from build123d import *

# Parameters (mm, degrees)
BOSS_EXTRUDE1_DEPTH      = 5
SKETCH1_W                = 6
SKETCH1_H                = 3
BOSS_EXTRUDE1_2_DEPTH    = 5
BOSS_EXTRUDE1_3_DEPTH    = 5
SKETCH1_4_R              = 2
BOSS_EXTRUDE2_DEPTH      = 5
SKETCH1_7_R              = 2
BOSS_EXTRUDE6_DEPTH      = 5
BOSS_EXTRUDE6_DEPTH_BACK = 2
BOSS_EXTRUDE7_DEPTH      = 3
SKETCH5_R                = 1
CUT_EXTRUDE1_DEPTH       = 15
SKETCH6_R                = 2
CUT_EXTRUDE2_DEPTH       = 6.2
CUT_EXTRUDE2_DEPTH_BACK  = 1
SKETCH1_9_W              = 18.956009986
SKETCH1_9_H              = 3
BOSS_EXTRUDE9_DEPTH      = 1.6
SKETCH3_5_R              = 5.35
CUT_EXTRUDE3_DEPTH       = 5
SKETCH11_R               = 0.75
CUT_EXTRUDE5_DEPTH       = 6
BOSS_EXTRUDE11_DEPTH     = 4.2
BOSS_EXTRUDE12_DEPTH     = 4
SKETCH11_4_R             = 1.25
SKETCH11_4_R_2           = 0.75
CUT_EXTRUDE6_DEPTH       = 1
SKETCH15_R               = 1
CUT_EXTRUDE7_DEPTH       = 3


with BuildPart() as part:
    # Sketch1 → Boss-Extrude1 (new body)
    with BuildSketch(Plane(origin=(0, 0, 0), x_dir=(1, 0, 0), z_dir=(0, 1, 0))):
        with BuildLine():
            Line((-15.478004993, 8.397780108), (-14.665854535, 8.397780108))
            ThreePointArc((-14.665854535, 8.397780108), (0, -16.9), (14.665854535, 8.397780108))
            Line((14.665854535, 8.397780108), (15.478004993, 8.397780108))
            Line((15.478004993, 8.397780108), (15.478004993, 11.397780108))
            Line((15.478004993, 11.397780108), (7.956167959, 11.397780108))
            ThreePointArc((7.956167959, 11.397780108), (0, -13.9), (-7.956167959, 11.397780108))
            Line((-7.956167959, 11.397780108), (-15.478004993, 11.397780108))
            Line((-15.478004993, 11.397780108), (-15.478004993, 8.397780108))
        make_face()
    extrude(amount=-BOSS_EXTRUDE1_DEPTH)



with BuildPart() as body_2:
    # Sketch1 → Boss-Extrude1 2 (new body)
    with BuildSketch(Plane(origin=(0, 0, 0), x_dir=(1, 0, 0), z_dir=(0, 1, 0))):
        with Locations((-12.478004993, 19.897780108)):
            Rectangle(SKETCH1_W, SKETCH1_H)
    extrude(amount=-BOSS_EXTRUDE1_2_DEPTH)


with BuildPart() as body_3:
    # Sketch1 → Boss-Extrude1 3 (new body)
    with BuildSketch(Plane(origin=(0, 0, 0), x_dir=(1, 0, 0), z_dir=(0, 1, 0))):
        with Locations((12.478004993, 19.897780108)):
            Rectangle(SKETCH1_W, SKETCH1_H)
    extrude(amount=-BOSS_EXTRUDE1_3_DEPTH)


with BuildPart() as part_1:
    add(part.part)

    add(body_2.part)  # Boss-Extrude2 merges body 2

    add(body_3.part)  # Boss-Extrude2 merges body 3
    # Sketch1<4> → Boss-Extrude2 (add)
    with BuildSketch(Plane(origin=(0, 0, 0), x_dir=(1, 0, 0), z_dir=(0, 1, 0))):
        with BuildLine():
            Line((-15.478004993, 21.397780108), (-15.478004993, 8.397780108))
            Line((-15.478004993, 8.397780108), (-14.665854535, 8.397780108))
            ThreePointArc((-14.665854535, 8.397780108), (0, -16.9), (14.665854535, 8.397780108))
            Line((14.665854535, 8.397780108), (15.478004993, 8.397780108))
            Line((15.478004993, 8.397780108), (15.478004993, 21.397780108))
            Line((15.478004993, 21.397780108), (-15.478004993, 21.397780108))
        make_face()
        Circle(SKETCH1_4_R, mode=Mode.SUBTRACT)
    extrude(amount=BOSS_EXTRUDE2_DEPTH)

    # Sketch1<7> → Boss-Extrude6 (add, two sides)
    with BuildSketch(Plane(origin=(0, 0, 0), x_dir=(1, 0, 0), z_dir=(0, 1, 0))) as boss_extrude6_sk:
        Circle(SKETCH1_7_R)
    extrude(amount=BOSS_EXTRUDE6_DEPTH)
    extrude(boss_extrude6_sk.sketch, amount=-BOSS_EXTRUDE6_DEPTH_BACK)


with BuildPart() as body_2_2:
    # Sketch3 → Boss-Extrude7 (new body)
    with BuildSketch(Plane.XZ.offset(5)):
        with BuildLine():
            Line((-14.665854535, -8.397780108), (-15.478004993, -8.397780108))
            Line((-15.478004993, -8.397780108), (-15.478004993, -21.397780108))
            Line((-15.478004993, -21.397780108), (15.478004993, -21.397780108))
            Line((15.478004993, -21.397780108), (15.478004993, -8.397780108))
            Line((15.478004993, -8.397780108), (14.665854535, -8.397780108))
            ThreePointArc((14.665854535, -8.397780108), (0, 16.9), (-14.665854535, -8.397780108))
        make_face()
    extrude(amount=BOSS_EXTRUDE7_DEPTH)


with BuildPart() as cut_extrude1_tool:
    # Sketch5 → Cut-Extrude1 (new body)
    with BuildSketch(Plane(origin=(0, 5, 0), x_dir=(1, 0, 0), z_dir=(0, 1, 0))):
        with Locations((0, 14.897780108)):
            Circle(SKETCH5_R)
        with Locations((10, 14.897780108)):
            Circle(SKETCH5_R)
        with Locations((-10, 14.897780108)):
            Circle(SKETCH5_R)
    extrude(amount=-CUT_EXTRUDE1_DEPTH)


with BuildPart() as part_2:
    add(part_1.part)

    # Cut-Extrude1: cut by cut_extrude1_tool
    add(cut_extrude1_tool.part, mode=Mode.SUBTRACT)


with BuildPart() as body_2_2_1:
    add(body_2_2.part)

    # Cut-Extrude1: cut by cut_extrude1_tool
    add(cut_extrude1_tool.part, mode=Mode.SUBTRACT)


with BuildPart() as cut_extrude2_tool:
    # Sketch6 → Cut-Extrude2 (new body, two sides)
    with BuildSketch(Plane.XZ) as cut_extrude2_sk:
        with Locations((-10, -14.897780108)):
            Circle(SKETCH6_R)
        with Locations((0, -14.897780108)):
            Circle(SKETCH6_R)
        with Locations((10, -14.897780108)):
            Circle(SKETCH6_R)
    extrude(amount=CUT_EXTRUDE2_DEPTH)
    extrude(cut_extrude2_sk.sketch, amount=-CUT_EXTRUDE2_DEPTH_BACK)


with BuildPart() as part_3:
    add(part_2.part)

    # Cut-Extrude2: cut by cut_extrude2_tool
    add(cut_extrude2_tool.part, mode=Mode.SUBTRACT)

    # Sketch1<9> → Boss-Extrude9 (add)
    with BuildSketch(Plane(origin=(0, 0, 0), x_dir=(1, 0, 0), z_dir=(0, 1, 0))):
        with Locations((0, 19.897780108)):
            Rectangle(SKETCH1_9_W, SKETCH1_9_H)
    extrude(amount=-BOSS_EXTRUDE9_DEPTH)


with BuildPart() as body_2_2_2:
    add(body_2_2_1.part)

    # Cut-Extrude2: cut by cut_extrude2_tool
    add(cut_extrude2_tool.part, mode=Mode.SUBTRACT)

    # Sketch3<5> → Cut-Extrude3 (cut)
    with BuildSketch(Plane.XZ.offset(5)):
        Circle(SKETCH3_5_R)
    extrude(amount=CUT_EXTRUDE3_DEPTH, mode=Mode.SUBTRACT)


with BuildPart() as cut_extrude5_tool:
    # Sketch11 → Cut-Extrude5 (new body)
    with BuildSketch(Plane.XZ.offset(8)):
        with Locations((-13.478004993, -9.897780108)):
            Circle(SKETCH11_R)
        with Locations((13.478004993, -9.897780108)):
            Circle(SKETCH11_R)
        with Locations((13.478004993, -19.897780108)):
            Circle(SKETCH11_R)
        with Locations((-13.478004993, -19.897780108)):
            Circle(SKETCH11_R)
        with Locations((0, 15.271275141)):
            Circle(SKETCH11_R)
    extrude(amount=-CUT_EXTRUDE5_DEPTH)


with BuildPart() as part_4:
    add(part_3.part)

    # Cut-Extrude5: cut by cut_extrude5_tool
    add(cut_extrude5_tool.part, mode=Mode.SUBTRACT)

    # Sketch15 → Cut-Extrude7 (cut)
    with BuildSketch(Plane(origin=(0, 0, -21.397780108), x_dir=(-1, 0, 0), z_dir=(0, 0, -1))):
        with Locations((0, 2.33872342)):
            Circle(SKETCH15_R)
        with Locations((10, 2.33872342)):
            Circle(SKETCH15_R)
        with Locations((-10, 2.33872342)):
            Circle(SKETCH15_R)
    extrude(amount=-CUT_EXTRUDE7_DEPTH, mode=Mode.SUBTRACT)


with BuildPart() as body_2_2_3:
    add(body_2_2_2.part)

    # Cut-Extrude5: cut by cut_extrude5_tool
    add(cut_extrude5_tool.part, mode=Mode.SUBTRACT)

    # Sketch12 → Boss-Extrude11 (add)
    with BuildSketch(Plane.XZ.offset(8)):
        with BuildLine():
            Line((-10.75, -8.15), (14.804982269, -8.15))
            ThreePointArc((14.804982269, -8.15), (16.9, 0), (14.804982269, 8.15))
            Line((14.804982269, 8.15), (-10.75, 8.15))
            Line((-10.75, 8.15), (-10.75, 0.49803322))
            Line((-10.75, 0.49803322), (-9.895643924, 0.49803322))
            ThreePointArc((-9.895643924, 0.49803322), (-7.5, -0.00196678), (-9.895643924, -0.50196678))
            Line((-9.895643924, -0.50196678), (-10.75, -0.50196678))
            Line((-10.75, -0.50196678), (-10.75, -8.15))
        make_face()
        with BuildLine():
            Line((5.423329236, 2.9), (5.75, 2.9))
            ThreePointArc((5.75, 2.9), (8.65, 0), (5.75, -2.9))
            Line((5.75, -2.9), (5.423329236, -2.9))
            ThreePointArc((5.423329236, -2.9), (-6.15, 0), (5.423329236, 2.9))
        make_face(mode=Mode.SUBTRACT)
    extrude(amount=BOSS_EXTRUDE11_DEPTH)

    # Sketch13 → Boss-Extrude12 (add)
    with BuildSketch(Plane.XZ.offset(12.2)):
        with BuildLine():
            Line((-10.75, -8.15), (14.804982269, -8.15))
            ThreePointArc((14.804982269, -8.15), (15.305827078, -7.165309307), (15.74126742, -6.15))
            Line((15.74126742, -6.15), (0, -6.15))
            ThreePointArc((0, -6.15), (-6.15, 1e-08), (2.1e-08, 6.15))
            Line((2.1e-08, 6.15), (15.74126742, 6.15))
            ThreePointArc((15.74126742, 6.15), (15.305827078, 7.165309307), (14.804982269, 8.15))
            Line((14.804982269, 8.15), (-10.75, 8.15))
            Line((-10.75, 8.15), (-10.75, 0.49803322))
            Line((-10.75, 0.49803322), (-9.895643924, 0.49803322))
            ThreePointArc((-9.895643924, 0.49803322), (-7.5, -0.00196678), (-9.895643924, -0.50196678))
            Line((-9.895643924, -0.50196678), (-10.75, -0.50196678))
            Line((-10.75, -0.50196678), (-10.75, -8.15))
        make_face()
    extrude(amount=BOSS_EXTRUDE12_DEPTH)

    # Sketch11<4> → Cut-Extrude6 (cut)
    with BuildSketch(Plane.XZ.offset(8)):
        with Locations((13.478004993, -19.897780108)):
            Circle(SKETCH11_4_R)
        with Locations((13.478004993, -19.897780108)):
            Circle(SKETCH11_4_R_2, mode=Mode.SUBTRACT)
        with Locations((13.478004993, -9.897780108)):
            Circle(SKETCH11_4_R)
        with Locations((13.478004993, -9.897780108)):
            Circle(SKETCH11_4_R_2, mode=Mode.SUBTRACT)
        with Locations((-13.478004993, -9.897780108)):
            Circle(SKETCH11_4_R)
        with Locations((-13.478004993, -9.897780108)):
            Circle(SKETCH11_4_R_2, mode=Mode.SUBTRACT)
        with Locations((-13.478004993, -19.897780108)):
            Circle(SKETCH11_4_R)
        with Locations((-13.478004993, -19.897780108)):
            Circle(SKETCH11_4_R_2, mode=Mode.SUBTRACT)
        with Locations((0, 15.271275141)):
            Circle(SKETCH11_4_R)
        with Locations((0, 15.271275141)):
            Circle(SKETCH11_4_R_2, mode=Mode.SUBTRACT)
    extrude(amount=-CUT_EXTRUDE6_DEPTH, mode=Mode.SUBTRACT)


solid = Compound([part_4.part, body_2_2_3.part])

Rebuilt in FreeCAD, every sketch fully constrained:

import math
import FreeCAD as App
import Part
import Sketcher


def add_polygon(sketch, points):
    """Adds a closed chain of lines whose ends are joined by coincident constraints."""
    first, n = sketch.GeometryCount, len(points)
    for a, b in zip(points, points[1:] + points[:1]):
        sketch.addGeometry(Part.LineSegment(App.Vector(*a, 0), App.Vector(*b, 0)), False)
    for i in range(n):
        sketch.addConstraint(Sketcher.Constraint("Coincident", first + i, 2, first + (i + 1) % n, 1))

doc = App.newDocument("Part")
body = doc.addObject("PartDesign::Body", "Body")

# Sketch on XZ plane
sketch1 = body.newObject("Sketcher::SketchObject", "Sketch")
sketch1.AttachmentSupport = (doc.getObject("XZ_Plane"), [""])
sketch1.MapMode = "FlatFace"
sketch1.addGeometry(Part.LineSegment(App.Vector(-15.5, -8.4, 0), App.Vector(-14.7, -8.4, 0)), False)
sketch1.addGeometry(Part.ArcOfCircle(Part.Circle(App.Vector(0, 0, 0), App.Vector(0, 0, 1), 16.9), math.radians(-30), math.radians(210)), False)
sketch1.addGeometry(Part.LineSegment(App.Vector(14.7, -8.4, 0), App.Vector(15.5, -8.4, 0)), False)
sketch1.addGeometry(Part.LineSegment(App.Vector(15.5, -8.4, 0), App.Vector(15.5, -11.4, 0)), False)
sketch1.addGeometry(Part.LineSegment(App.Vector(15.5, -11.4, 0), App.Vector(8, -11.4, 0)), False)
sketch1.addGeometry(Part.ArcOfCircle(Part.Circle(App.Vector(0, 0, 0), App.Vector(0, 0, 1), 13.9), math.radians(-55), math.radians(235)), False)
sketch1.addGeometry(Part.LineSegment(App.Vector(-8, -11.4, 0), App.Vector(-15.5, -11.4, 0)), False)
sketch1.addGeometry(Part.LineSegment(App.Vector(-15.5, -11.4, 0), App.Vector(-15.5, -8.4, 0)), False)
sketch1.addConstraint(Sketcher.Constraint("Coincident", 0, 2, 1, 2))
sketch1.addConstraint(Sketcher.Constraint("Coincident", 1, 1, 2, 1))
sketch1.addConstraint(Sketcher.Constraint("Coincident", 2, 2, 3, 1))
sketch1.addConstraint(Sketcher.Constraint("Coincident", 3, 2, 4, 1))
sketch1.addConstraint(Sketcher.Constraint("Coincident", 4, 2, 5, 1))
sketch1.addConstraint(Sketcher.Constraint("Coincident", 5, 2, 6, 1))
sketch1.addConstraint(Sketcher.Constraint("Coincident", 6, 2, 7, 1))
sketch1.addConstraint(Sketcher.Constraint("Coincident", 7, 2, 0, 1))
sketch1.addConstraint(Sketcher.Constraint("Horizontal", 0))
sketch1.addConstraint(Sketcher.Constraint("Horizontal", 2))
sketch1.addConstraint(Sketcher.Constraint("Vertical", 3))
sketch1.addConstraint(Sketcher.Constraint("Horizontal", 4))
sketch1.addConstraint(Sketcher.Constraint("Horizontal", 6))
sketch1.addConstraint(Sketcher.Constraint("Vertical", 7))
sketch1.addConstraint(Sketcher.Constraint("Coincident", 1, 3, -1, 1))
sketch1.addConstraint(Sketcher.Constraint("Coincident", 5, 3, -1, 1))
sketch1.addConstraint(Sketcher.Constraint("Symmetric", 3, 2, 6, 2, -2))
sketch1.addConstraint(Sketcher.Constraint("Horizontal", 0, 2, 1, 1))
sketch1.addConstraint(Sketcher.Constraint("Radius", 1, 16.9))
sketch1.addConstraint(Sketcher.Constraint("Radius", 5, 13.9))
sketch1.addConstraint(Sketcher.Constraint("DistanceY", 3, 2, 3, 1, 3.0))
sketch1.addConstraint(Sketcher.Constraint("DistanceX", 0, 1, 0, 2, 0.81215))
sketch1.addConstraint(Sketcher.Constraint("DistanceX", 4, 2, 4, 1, 7.521837))
pad1 = body.newObject("PartDesign::Pad", "Pad")
pad1.Profile = sketch1
pad1.Length = 5
body2 = doc.addObject("PartDesign::Body", "Body001")

# Sketch on XZ plane
sketch2 = body2.newObject("Sketcher::SketchObject", "Sketch001")
sketch2.AttachmentSupport = (doc.getObject("XZ_Plane001"), [""])
sketch2.MapMode = "FlatFace"
add_polygon(sketch2, [(-15.5, -21.4), (-15.5, -18.4), (-9.5, -18.4), (-9.5, -21.4)])  # lines 0-3
sketch2.addConstraint(Sketcher.Constraint("Vertical", 0))
sketch2.addConstraint(Sketcher.Constraint("Horizontal", 1))
sketch2.addConstraint(Sketcher.Constraint("Vertical", 2))
sketch2.addConstraint(Sketcher.Constraint("Horizontal", 3))
sketch2.addConstraint(Sketcher.Constraint("DistanceX", 1, 1, 1, 2, 6.0))
sketch2.addConstraint(Sketcher.Constraint("DistanceY", 0, 1, 0, 2, 3.0))
sketch2.addConstraint(Sketcher.Constraint("DistanceY", 0, 2, -1, 1, 18.39778))
sketch2.addConstraint(Sketcher.Constraint("DistanceX", 0, 2, -1, 1, 15.478005))
pad2 = body2.newObject("PartDesign::Pad", "Pad001")
pad2.Profile = sketch2
pad2.Length = 5
body3 = doc.addObject("PartDesign::Body", "Body002")

# Sketch on XZ plane
sketch3 = body3.newObject("Sketcher::SketchObject", "Sketch002")
sketch3.AttachmentSupport = (doc.getObject("XZ_Plane002"), [""])
sketch3.MapMode = "FlatFace"
add_polygon(sketch3, [(9.5, -21.4), (9.5, -18.4), (15.5, -18.4), (15.5, -21.4)])  # lines 0-3
sketch3.addConstraint(Sketcher.Constraint("Vertical", 0))
sketch3.addConstraint(Sketcher.Constraint("Horizontal", 1))
sketch3.addConstraint(Sketcher.Constraint("Vertical", 2))
sketch3.addConstraint(Sketcher.Constraint("Horizontal", 3))
sketch3.addConstraint(Sketcher.Constraint("DistanceX", 1, 1, 1, 2, 6.0))
sketch3.addConstraint(Sketcher.Constraint("DistanceY", 0, 1, 0, 2, 3.0))
sketch3.addConstraint(Sketcher.Constraint("DistanceY", 0, 2, -1, 1, 18.39778))
sketch3.addConstraint(Sketcher.Constraint("DistanceX", -1, 1, 0, 2, 9.478005))
pad3 = body3.newObject("PartDesign::Pad", "Pad002")
pad3.Profile = sketch3
pad3.Length = 5
body.AllowCompound = True
doc.recompute()

boolean = body.newObject("PartDesign::Boolean", "Boolean")
boolean.Type = "Fuse"
boolean.addObjects([body2])
doc.recompute()

boolean2 = body.newObject("PartDesign::Boolean", "Boolean001")
boolean2.Type = "Fuse"
boolean2.addObjects([body3])

# Sketch on XZ plane
sketch4 = body.newObject("Sketcher::SketchObject", "Sketch003")
sketch4.AttachmentSupport = (doc.getObject("XZ_Plane"), [""])
sketch4.MapMode = "FlatFace"
sketch4.addGeometry(Part.LineSegment(App.Vector(-15.5, -21.4, 0), App.Vector(-15.5, -8.4, 0)), False)
sketch4.addGeometry(Part.LineSegment(App.Vector(-15.5, -8.4, 0), App.Vector(-14.7, -8.4, 0)), False)
sketch4.addGeometry(Part.ArcOfCircle(Part.Circle(App.Vector(0, 0, 0), App.Vector(0, 0, 1), 16.9), math.radians(-30), math.radians(210)), False)
sketch4.addGeometry(Part.LineSegment(App.Vector(14.7, -8.4, 0), App.Vector(15.5, -8.4, 0)), False)
sketch4.addGeometry(Part.LineSegment(App.Vector(15.5, -8.4, 0), App.Vector(15.5, -21.4, 0)), False)
sketch4.addGeometry(Part.LineSegment(App.Vector(15.5, -21.4, 0), App.Vector(-15.5, -21.4, 0)), False)
sketch4.addGeometry(Part.Circle(App.Vector(0, 0, 0), App.Vector(0, 0, 1), 2), False)
sketch4.addConstraint(Sketcher.Constraint("Coincident", 0, 2, 1, 1))
sketch4.addConstraint(Sketcher.Constraint("Coincident", 1, 2, 2, 2))
sketch4.addConstraint(Sketcher.Constraint("Coincident", 2, 1, 3, 1))
sketch4.addConstraint(Sketcher.Constraint("Coincident", 3, 2, 4, 1))
sketch4.addConstraint(Sketcher.Constraint("Coincident", 4, 2, 5, 1))
sketch4.addConstraint(Sketcher.Constraint("Coincident", 5, 2, 0, 1))
sketch4.addConstraint(Sketcher.Constraint("Vertical", 0))
sketch4.addConstraint(Sketcher.Constraint("Horizontal", 1))
sketch4.addConstraint(Sketcher.Constraint("Horizontal", 3))
sketch4.addConstraint(Sketcher.Constraint("Vertical", 4))
sketch4.addConstraint(Sketcher.Constraint("Horizontal", 5))
sketch4.addConstraint(Sketcher.Constraint("Coincident", 2, 3, -1, 1))
sketch4.addConstraint(Sketcher.Constraint("Coincident", 6, 3, -1, 1))
sketch4.addConstraint(Sketcher.Constraint("Symmetric", 0, 2, 3, 2, -2))
sketch4.addConstraint(Sketcher.Constraint("Diameter", 6, 4.0))
sketch4.addConstraint(Sketcher.Constraint("Radius", 2, 16.9))
sketch4.addConstraint(Sketcher.Constraint("DistanceY", 0, 1, 0, 2, 13.0))
sketch4.addConstraint(Sketcher.Constraint("DistanceX", 1, 1, 1, 2, 0.81215))
sketch4.addConstraint(Sketcher.Constraint("DistanceX", 5, 2, 5, 1, 30.95601))
pad4 = body.newObject("PartDesign::Pad", "Pad003")
pad4.Profile = sketch4
pad4.Length = 5
pad4.Reversed = True

# Sketch on XZ plane
sketch5 = body.newObject("Sketcher::SketchObject", "Sketch004")
sketch5.AttachmentSupport = (doc.getObject("XZ_Plane"), [""])
sketch5.MapMode = "FlatFace"
sketch5.addGeometry(Part.Circle(App.Vector(0, 0, 0), App.Vector(0, 0, 1), 2), False)
sketch5.addConstraint(Sketcher.Constraint("Coincident", 0, 3, -1, 1))
sketch5.addConstraint(Sketcher.Constraint("Diameter", 0, 4.0))
pad5 = body.newObject("PartDesign::Pad", "Pad004")
pad5.Profile = sketch5
pad5.Type = "TwoLengths"
pad5.Length = 5
pad5.Length2 = 2
pad5.Reversed = True
body4 = doc.addObject("PartDesign::Body", "Body003")

# Sketch on XZ plane
sketch6 = body4.newObject("Sketcher::SketchObject", "Sketch005")
sketch6.AttachmentSupport = (doc.getObject("XZ_Plane003"), [""])
sketch6.MapMode = "FlatFace"
sketch6.AttachmentOffset = App.Placement(App.Vector(0, 0, 5), App.Rotation())
sketch6.addGeometry(Part.LineSegment(App.Vector(-14.7, -8.4, 0), App.Vector(-15.5, -8.4, 0)), False)
sketch6.addGeometry(Part.LineSegment(App.Vector(-15.5, -8.4, 0), App.Vector(-15.5, -21.4, 0)), False)
sketch6.addGeometry(Part.LineSegment(App.Vector(-15.5, -21.4, 0), App.Vector(15.5, -21.4, 0)), False)
sketch6.addGeometry(Part.LineSegment(App.Vector(15.5, -21.4, 0), App.Vector(15.5, -8.4, 0)), False)
sketch6.addGeometry(Part.LineSegment(App.Vector(15.5, -8.4, 0), App.Vector(14.7, -8.4, 0)), False)
sketch6.addGeometry(Part.ArcOfCircle(Part.Circle(App.Vector(0, 0, 0), App.Vector(0, 0, 1), 16.9), math.radians(-30), math.radians(210)), False)
sketch6.addConstraint(Sketcher.Constraint("Coincident", 0, 2, 1, 1))
sketch6.addConstraint(Sketcher.Constraint("Coincident", 1, 2, 2, 1))
sketch6.addConstraint(Sketcher.Constraint("Coincident", 2, 2, 3, 1))
sketch6.addConstraint(Sketcher.Constraint("Coincident", 3, 2, 4, 1))
sketch6.addConstraint(Sketcher.Constraint("Coincident", 4, 2, 5, 1))
sketch6.addConstraint(Sketcher.Constraint("Coincident", 5, 2, 0, 1))
sketch6.addConstraint(Sketcher.Constraint("Horizontal", 0))
sketch6.addConstraint(Sketcher.Constraint("Vertical", 1))
sketch6.addConstraint(Sketcher.Constraint("Horizontal", 2))
sketch6.addConstraint(Sketcher.Constraint("Vertical", 3))
sketch6.addConstraint(Sketcher.Constraint("Horizontal", 4))
sketch6.addConstraint(Sketcher.Constraint("Coincident", 5, 3, -1, 1))
sketch6.addConstraint(Sketcher.Constraint("Symmetric", 0, 2, 3, 2, -2))
sketch6.addConstraint(Sketcher.Constraint("Radius", 5, 16.9))
sketch6.addConstraint(Sketcher.Constraint("DistanceY", 1, 2, 1, 1, 13.0))
sketch6.addConstraint(Sketcher.Constraint("DistanceX", 0, 2, 0, 1, 0.81215))
sketch6.addConstraint(Sketcher.Constraint("DistanceX", 2, 1, 2, 2, 30.95601))
pad6 = body4.newObject("PartDesign::Pad", "Pad005")
pad6.Profile = sketch6
pad6.Length = 3
body5 = doc.addObject("PartDesign::Body", "Body004")
body5.AllowCompound = True

# Sketch on XZ plane
sketch7 = body5.newObject("Sketcher::SketchObject", "Sketch006")
sketch7.AttachmentSupport = (doc.getObject("XZ_Plane004"), [""])
sketch7.MapMode = "FlatFace"
sketch7.AttachmentOffset = App.Placement(App.Vector(0, 0, -5), App.Rotation())
sketch7.addGeometry(Part.Circle(App.Vector(0, -14.9, 0), App.Vector(0, 0, 1), 1), False)
sketch7.addGeometry(Part.Circle(App.Vector(10, -14.9, 0), App.Vector(0, 0, 1), 1), False)
sketch7.addGeometry(Part.Circle(App.Vector(-10, -14.9, 0), App.Vector(0, 0, 1), 1), False)
sketch7.addConstraint(Sketcher.Constraint("Equal", 0, 1))
sketch7.addConstraint(Sketcher.Constraint("Equal", 1, 2))
sketch7.addConstraint(Sketcher.Constraint("Symmetric", 1, 3, 2, 3, -2))
sketch7.addConstraint(Sketcher.Constraint("PointOnObject", 0, 3, -2))
sketch7.addConstraint(Sketcher.Constraint("Horizontal", 0, 3, 1, 3))
sketch7.addConstraint(Sketcher.Constraint("Diameter", 0, 2.0))
sketch7.addConstraint(Sketcher.Constraint("DistanceX", -1, 1, 1, 3, 10.0))
sketch7.addConstraint(Sketcher.Constraint("DistanceY", 0, 3, -1, 1, 14.89778))
pad7 = body5.newObject("PartDesign::Pad", "Pad006")
pad7.Profile = sketch7
pad7.Length = 15
doc.recompute()

body6 = doc.addObject("PartDesign::Body", "Body005")
body6.BaseFeature = body5
boolean3 = body.newObject("PartDesign::Boolean", "Boolean002")
boolean3.Type = "Cut"
boolean3.addObjects([body6])
doc.recompute()

boolean4 = body4.newObject("PartDesign::Boolean", "Boolean003")
boolean4.Type = "Cut"
boolean4.addObjects([body5])
body7 = doc.addObject("PartDesign::Body", "Body006")
body7.AllowCompound = True

# Sketch on XZ plane
sketch8 = body7.newObject("Sketcher::SketchObject", "Sketch007")
sketch8.AttachmentSupport = (doc.getObject("XZ_Plane006"), [""])
sketch8.MapMode = "FlatFace"
sketch8.addGeometry(Part.Circle(App.Vector(-10, -14.9, 0), App.Vector(0, 0, 1), 2), False)
sketch8.addGeometry(Part.Circle(App.Vector(0, -14.9, 0), App.Vector(0, 0, 1), 2), False)
sketch8.addGeometry(Part.Circle(App.Vector(10, -14.9, 0), App.Vector(0, 0, 1), 2), False)
sketch8.addConstraint(Sketcher.Constraint("Equal", 0, 1))
sketch8.addConstraint(Sketcher.Constraint("Equal", 1, 2))
sketch8.addConstraint(Sketcher.Constraint("Symmetric", 0, 3, 2, 3, -2))
sketch8.addConstraint(Sketcher.Constraint("PointOnObject", 1, 3, -2))
sketch8.addConstraint(Sketcher.Constraint("Horizontal", 0, 3, 1, 3))
sketch8.addConstraint(Sketcher.Constraint("Diameter", 0, 4.0))
sketch8.addConstraint(Sketcher.Constraint("DistanceX", 0, 3, -1, 1, 10.0))
sketch8.addConstraint(Sketcher.Constraint("DistanceY", 0, 3, -1, 1, 14.89778))
pad8 = body7.newObject("PartDesign::Pad", "Pad007")
pad8.Profile = sketch8
pad8.Type = "TwoLengths"
pad8.Length = 6.2
pad8.Length2 = 1
doc.recompute()

body8 = doc.addObject("PartDesign::Body", "Body007")
body8.BaseFeature = body7
boolean5 = body.newObject("PartDesign::Boolean", "Boolean004")
boolean5.Type = "Cut"
boolean5.addObjects([body8])
doc.recompute()

# Sketch on XZ plane
sketch9 = body.newObject("Sketcher::SketchObject", "Sketch008")
sketch9.AttachmentSupport = (doc.getObject("XZ_Plane"), [""])
sketch9.MapMode = "FlatFace"
add_polygon(sketch9, [(-9.5, -21.4), (-9.5, -18.4), (9.5, -18.4), (9.5, -21.4)])  # lines 0-3
sketch9.addConstraint(Sketcher.Constraint("Vertical", 0))
sketch9.addConstraint(Sketcher.Constraint("Horizontal", 1))
sketch9.addConstraint(Sketcher.Constraint("Vertical", 2))
sketch9.addConstraint(Sketcher.Constraint("Horizontal", 3))
sketch9.addConstraint(Sketcher.Constraint("DistanceY", 0, 1, 0, 2, 3.0))
sketch9.addConstraint(Sketcher.Constraint("DistanceX", 1, 1, 1, 2, 18.95601))
sketch9.addConstraint(Sketcher.Constraint("DistanceY", 0, 2, -1, 1, 18.39778))
sketch9.addConstraint(Sketcher.Constraint("DistanceX", 0, 2, -1, 1, 9.478005))
pad9 = body.newObject("PartDesign::Pad", "Pad008")
pad9.Profile = sketch9
pad9.Length = 1.6
doc.recompute()

boolean6 = body4.newObject("PartDesign::Boolean", "Boolean005")
boolean6.Type = "Cut"
boolean6.addObjects([body7])

# Sketch on XZ plane
sketch10 = body4.newObject("Sketcher::SketchObject", "Sketch009")
sketch10.AttachmentSupport = (doc.getObject("XZ_Plane003"), [""])
sketch10.MapMode = "FlatFace"
sketch10.AttachmentOffset = App.Placement(App.Vector(0, 0, 5), App.Rotation())
sketch10.addGeometry(Part.Circle(App.Vector(0, 0, 0), App.Vector(0, 0, 1), 5), False)
sketch10.addConstraint(Sketcher.Constraint("Coincident", 0, 3, -1, 1))
sketch10.addConstraint(Sketcher.Constraint("Diameter", 0, 10.7))
pocket1 = body4.newObject("PartDesign::Pocket", "Pocket")
pocket1.Profile = sketch10
pocket1.Length = 5
pocket1.Reversed = True
body9 = doc.addObject("PartDesign::Body", "Body008")
body9.AllowCompound = True

# Sketch on XZ plane
sketch11 = body9.newObject("Sketcher::SketchObject", "Sketch010")
sketch11.AttachmentSupport = (doc.getObject("XZ_Plane008"), [""])
sketch11.MapMode = "FlatFace"
sketch11.AttachmentOffset = App.Placement(App.Vector(0, 0, 8), App.Rotation())
sketch11.addGeometry(Part.Circle(App.Vector(-13.5, -9.9, 0), App.Vector(0, 0, 1), 0.8), False)
sketch11.addGeometry(Part.Circle(App.Vector(13.5, -9.9, 0), App.Vector(0, 0, 1), 0.8), False)
sketch11.addGeometry(Part.Circle(App.Vector(13.5, -19.9, 0), App.Vector(0, 0, 1), 0.8), False)
sketch11.addGeometry(Part.Circle(App.Vector(-13.5, -19.9, 0), App.Vector(0, 0, 1), 0.8), False)
sketch11.addGeometry(Part.Circle(App.Vector(0, 15.3, 0), App.Vector(0, 0, 1), 0.8), False)
sketch11.addConstraint(Sketcher.Constraint("Equal", 0, 1))
sketch11.addConstraint(Sketcher.Constraint("Equal", 1, 2))
sketch11.addConstraint(Sketcher.Constraint("Equal", 2, 3))
sketch11.addConstraint(Sketcher.Constraint("Equal", 3, 4))
sketch11.addConstraint(Sketcher.Constraint("Symmetric", 0, 3, 1, 3, -2))
sketch11.addConstraint(Sketcher.Constraint("Symmetric", 2, 3, 3, 3, -2))
sketch11.addConstraint(Sketcher.Constraint("PointOnObject", 4, 3, -2))
sketch11.addConstraint(Sketcher.Constraint("Vertical", 1, 3, 2, 3))
sketch11.addConstraint(Sketcher.Constraint("Diameter", 0, 1.5))
sketch11.addConstraint(Sketcher.Constraint("DistanceY", 2, 3, 1, 3, 10.0))
sketch11.addConstraint(Sketcher.Constraint("DistanceY", 0, 3, -1, 1, 9.89778))
sketch11.addConstraint(Sketcher.Constraint("DistanceX", 0, 3, 1, 3, 26.95601))
sketch11.addConstraint(Sketcher.Constraint("DistanceY", -1, 1, 4, 3, 15.271275))
pad10 = body9.newObject("PartDesign::Pad", "Pad009")
pad10.Profile = sketch11
pad10.Length = 6
pad10.Reversed = True
doc.recompute()

body10 = doc.addObject("PartDesign::Body", "Body009")
body10.BaseFeature = body9
boolean7 = body.newObject("PartDesign::Boolean", "Boolean006")
boolean7.Type = "Cut"
boolean7.addObjects([body10])
doc.recompute()

# Sketch on XY plane
sketch12 = body.newObject("Sketcher::SketchObject", "Sketch011")
sketch12.AttachmentSupport = (doc.getObject("XY_Plane"), [""])
sketch12.MapMode = "FlatFace"
sketch12.AttachmentOffset = App.Placement(App.Vector(0, 0, -21.39778), App.Rotation())
sketch12.addGeometry(Part.Circle(App.Vector(0, 2.3, 0), App.Vector(0, 0, 1), 1), False)
sketch12.addGeometry(Part.Circle(App.Vector(-10, 2.3, 0), App.Vector(0, 0, 1), 1), False)
sketch12.addGeometry(Part.Circle(App.Vector(10, 2.3, 0), App.Vector(0, 0, 1), 1), False)
sketch12.addConstraint(Sketcher.Constraint("Equal", 0, 1))
sketch12.addConstraint(Sketcher.Constraint("Equal", 1, 2))
sketch12.addConstraint(Sketcher.Constraint("Symmetric", 1, 3, 2, 3, -2))
sketch12.addConstraint(Sketcher.Constraint("PointOnObject", 0, 3, -2))
sketch12.addConstraint(Sketcher.Constraint("Horizontal", 0, 3, 1, 3))
sketch12.addConstraint(Sketcher.Constraint("Diameter", 0, 2.0))
sketch12.addConstraint(Sketcher.Constraint("DistanceX", 1, 3, -1, 1, 10.0))
sketch12.addConstraint(Sketcher.Constraint("DistanceY", -1, 1, 0, 3, 2.338723))
pocket2 = body.newObject("PartDesign::Pocket", "Pocket001")
pocket2.Profile = sketch12
pocket2.Length = 3
pocket2.Reversed = True
doc.recompute()

boolean8 = body4.newObject("PartDesign::Boolean", "Boolean007")
boolean8.Type = "Cut"
boolean8.addObjects([body9])

# Sketch on XZ plane
sketch13 = body4.newObject("Sketcher::SketchObject", "Sketch012")
sketch13.AttachmentSupport = (doc.getObject("XZ_Plane003"), [""])
sketch13.MapMode = "FlatFace"
sketch13.AttachmentOffset = App.Placement(App.Vector(0, 0, 8), App.Rotation())
sketch13.addGeometry(Part.LineSegment(App.Vector(-10.75, -8.15, 0), App.Vector(14.8, -8.15, 0)), False)
sketch13.addGeometry(Part.ArcOfCircle(Part.Circle(App.Vector(0, 0, 0), App.Vector(0, 0, 1), 16.9), math.radians(-29), math.radians(29)), False)
sketch13.addGeometry(Part.LineSegment(App.Vector(14.8, 8.15, 0), App.Vector(-10.75, 8.15, 0)), False)
sketch13.addGeometry(Part.LineSegment(App.Vector(-10.75, 8.15, 0), App.Vector(-10.75, 0.5, 0)), False)
sketch13.addGeometry(Part.LineSegment(App.Vector(-10.75, 0.5, 0), App.Vector(-9.9, 0.5, 0)), False)
sketch13.addGeometry(Part.ArcOfCircle(Part.Circle(App.Vector(-8.75, 0, 0), App.Vector(0, 0, 1), 1.25), math.radians(-156), math.radians(156)), False)
sketch13.addGeometry(Part.LineSegment(App.Vector(-9.9, -0.5, 0), App.Vector(-10.75, -0.5, 0)), False)
sketch13.addGeometry(Part.LineSegment(App.Vector(-10.75, -0.5, 0), App.Vector(-10.75, -8.15, 0)), False)
sketch13.addGeometry(Part.ArcOfCircle(Part.Circle(App.Vector(0, 0, 0), App.Vector(0, 0, 1), 6.15), math.radians(28), math.radians(332)), False)
sketch13.addGeometry(Part.LineSegment(App.Vector(5.42, 2.9, 0), App.Vector(5.75, 2.9, 0)), False)
sketch13.addGeometry(Part.ArcOfCircle(Part.Circle(App.Vector(5.75, 0, 0), App.Vector(0, 0, 1), 2.9), math.radians(-90), math.radians(90)), False)
sketch13.addGeometry(Part.LineSegment(App.Vector(5.75, -2.9, 0), App.Vector(5.42, -2.9, 0)), False)
sketch13.addConstraint(Sketcher.Constraint("Coincident", 0, 2, 1, 1))
sketch13.addConstraint(Sketcher.Constraint("Coincident", 1, 2, 2, 1))
sketch13.addConstraint(Sketcher.Constraint("Coincident", 2, 2, 3, 1))
sketch13.addConstraint(Sketcher.Constraint("Coincident", 3, 2, 4, 1))
sketch13.addConstraint(Sketcher.Constraint("Coincident", 4, 2, 5, 2))
sketch13.addConstraint(Sketcher.Constraint("Coincident", 5, 1, 6, 1))
sketch13.addConstraint(Sketcher.Constraint("Coincident", 6, 2, 7, 1))
sketch13.addConstraint(Sketcher.Constraint("Coincident", 7, 2, 0, 1))
sketch13.addConstraint(Sketcher.Constraint("Coincident", 8, 1, 9, 1))
sketch13.addConstraint(Sketcher.Constraint("Tangent", 9, 2, 10, 2))
sketch13.addConstraint(Sketcher.Constraint("Tangent", 10, 1, 11, 1))
sketch13.addConstraint(Sketcher.Constraint("Coincident", 11, 2, 8, 2))
sketch13.addConstraint(Sketcher.Constraint("Horizontal", 0))
sketch13.addConstraint(Sketcher.Constraint("Horizontal", 2))
sketch13.addConstraint(Sketcher.Constraint("Vertical", 3))
sketch13.addConstraint(Sketcher.Constraint("Horizontal", 4))
sketch13.addConstraint(Sketcher.Constraint("Horizontal", 6))
sketch13.addConstraint(Sketcher.Constraint("Vertical", 7))
sketch13.addConstraint(Sketcher.Constraint("Horizontal", 9))
sketch13.addConstraint(Sketcher.Constraint("Horizontal", 11))
sketch13.addConstraint(Sketcher.Constraint("Coincident", 1, 3, -1, 1))
sketch13.addConstraint(Sketcher.Constraint("Coincident", 8, 3, -1, 1))
sketch13.addConstraint(Sketcher.Constraint("Symmetric", 2, 2, 7, 2, -1))
sketch13.addConstraint(Sketcher.Constraint("PointOnObject", 10, 3, -1))
sketch13.addConstraint(Sketcher.Constraint("Vertical", 4, 2, 5, 1))
sketch13.addConstraint(Sketcher.Constraint("Radius", 1, 16.9))
sketch13.addConstraint(Sketcher.Constraint("Radius", 10, 2.9))
sketch13.addConstraint(Sketcher.Constraint("Radius", 5, 1.25))
sketch13.addConstraint(Sketcher.Constraint("Radius", 8, 6.15))
sketch13.addConstraint(Sketcher.Constraint("DistanceX", 2, 2, 5, 3, 2.0))
sketch13.addConstraint(Sketcher.Constraint("DistanceY", 5, 1, 4, 2, 1.0))
sketch13.addConstraint(Sketcher.Constraint("DistanceX", 5, 3, 10, 3, 14.5))
sketch13.addConstraint(Sketcher.Constraint("DistanceY", 0, 2, 1, 2, 16.3))
sketch13.addConstraint(Sketcher.Constraint("DistanceX", 5, 3, -1, 1, 8.75))
sketch13.addConstraint(Sketcher.Constraint("DistanceY", 3, 2, 3, 1, 7.651967))
pad11 = body4.newObject("PartDesign::Pad", "Pad010")
pad11.Profile = sketch13
pad11.Length = 4.2

# Sketch on XZ plane
sketch14 = body4.newObject("Sketcher::SketchObject", "Sketch013")
sketch14.AttachmentSupport = (doc.getObject("XZ_Plane003"), [""])
sketch14.MapMode = "FlatFace"
sketch14.AttachmentOffset = App.Placement(App.Vector(0, 0, 12.2), App.Rotation())
sketch14.addGeometry(Part.LineSegment(App.Vector(-10.8, -8.2, 0), App.Vector(14.8, -8.2, 0)), False)
sketch14.addGeometry(Part.ArcOfCircle(Part.Circle(App.Vector(0, 0, 0), App.Vector(0, 0, 1), 16.9), math.radians(-28.83), math.radians(-21.34)), False)
sketch14.addGeometry(Part.LineSegment(App.Vector(15.7, -6.2, 0), App.Vector(0, -6.2, 0)), False)
sketch14.addGeometry(Part.ArcOfCircle(Part.Circle(App.Vector(0, 0, 0), App.Vector(0, 0, 1), 6.2), math.radians(90), math.radians(270)), False)
sketch14.addGeometry(Part.LineSegment(App.Vector(0, 6.2, 0), App.Vector(15.7, 6.2, 0)), False)
sketch14.addGeometry(Part.ArcOfCircle(Part.Circle(App.Vector(0, 0, 0), App.Vector(0, 0, 1), 16.9), math.radians(21.34), math.radians(28.83)), False)
sketch14.addGeometry(Part.LineSegment(App.Vector(14.8, 8.2, 0), App.Vector(-10.8, 8.2, 0)), False)
sketch14.addGeometry(Part.LineSegment(App.Vector(-10.8, 8.2, 0), App.Vector(-10.8, 0.5, 0)), False)
sketch14.addGeometry(Part.LineSegment(App.Vector(-10.8, 0.5, 0), App.Vector(-9.9, 0.5, 0)), False)
sketch14.addGeometry(Part.ArcOfCircle(Part.Circle(App.Vector(-8.8, 0, 0), App.Vector(0, 0, 1), 1.2), math.radians(-156), math.radians(156)), False)
sketch14.addGeometry(Part.LineSegment(App.Vector(-9.9, -0.5, 0), App.Vector(-10.8, -0.5, 0)), False)
sketch14.addGeometry(Part.LineSegment(App.Vector(-10.8, -0.5, 0), App.Vector(-10.8, -8.2, 0)), False)
sketch14.addConstraint(Sketcher.Constraint("Coincident", 0, 2, 1, 1))
sketch14.addConstraint(Sketcher.Constraint("Coincident", 1, 2, 2, 1))
sketch14.addConstraint(Sketcher.Constraint("Tangent", 2, 2, 3, 2))
sketch14.addConstraint(Sketcher.Constraint("Tangent", 3, 1, 4, 1))
sketch14.addConstraint(Sketcher.Constraint("Coincident", 4, 2, 5, 1))
sketch14.addConstraint(Sketcher.Constraint("Coincident", 5, 2, 6, 1))
sketch14.addConstraint(Sketcher.Constraint("Coincident", 6, 2, 7, 1))
sketch14.addConstraint(Sketcher.Constraint("Coincident", 7, 2, 8, 1))
sketch14.addConstraint(Sketcher.Constraint("Coincident", 8, 2, 9, 2))
sketch14.addConstraint(Sketcher.Constraint("Coincident", 9, 1, 10, 1))
sketch14.addConstraint(Sketcher.Constraint("Coincident", 10, 2, 11, 1))
sketch14.addConstraint(Sketcher.Constraint("Coincident", 11, 2, 0, 1))
sketch14.addConstraint(Sketcher.Constraint("Horizontal", 0))
sketch14.addConstraint(Sketcher.Constraint("Horizontal", 2))
sketch14.addConstraint(Sketcher.Constraint("Horizontal", 4))
sketch14.addConstraint(Sketcher.Constraint("Horizontal", 6))
sketch14.addConstraint(Sketcher.Constraint("Vertical", 7))
sketch14.addConstraint(Sketcher.Constraint("Horizontal", 8))
sketch14.addConstraint(Sketcher.Constraint("Horizontal", 10))
sketch14.addConstraint(Sketcher.Constraint("Vertical", 11))
sketch14.addConstraint(Sketcher.Constraint("Coincident", 1, 3, -1, 1))
sketch14.addConstraint(Sketcher.Constraint("Coincident", 3, 3, -1, 1))
sketch14.addConstraint(Sketcher.Constraint("Coincident", 5, 3, -1, 1))
sketch14.addConstraint(Sketcher.Constraint("Equal", 1, 5))
sketch14.addConstraint(Sketcher.Constraint("Symmetric", 6, 2, 11, 2, -1))
sketch14.addConstraint(Sketcher.Constraint("Vertical", 8, 2, 9, 1))
sketch14.addConstraint(Sketcher.Constraint("Radius", 1, 16.9))
sketch14.addConstraint(Sketcher.Constraint("Radius", 3, 6.15))
sketch14.addConstraint(Sketcher.Constraint("Radius", 9, 1.25))
sketch14.addConstraint(Sketcher.Constraint("DistanceY", 0, 2, 1, 2, 2.0))
sketch14.addConstraint(Sketcher.Constraint("DistanceX", 6, 2, 9, 3, 2.0))
sketch14.addConstraint(Sketcher.Constraint("DistanceY", 9, 1, 8, 2, 1.0))
sketch14.addConstraint(Sketcher.Constraint("DistanceX", 9, 3, -1, 1, 8.75))
sketch14.addConstraint(Sketcher.Constraint("DistanceY", 7, 2, 7, 1, 7.651967))
pad12 = body4.newObject("PartDesign::Pad", "Pad011")
pad12.Profile = sketch14
pad12.Length = 4

# Sketch on XZ plane
sketch15 = body4.newObject("Sketcher::SketchObject", "Sketch014")
sketch15.AttachmentSupport = (doc.getObject("XZ_Plane003"), [""])
sketch15.MapMode = "FlatFace"
sketch15.AttachmentOffset = App.Placement(App.Vector(0, 0, 8), App.Rotation())
sketch15.addGeometry(Part.Circle(App.Vector(13.5, -19.9, 0), App.Vector(0, 0, 1), 1.2), False)
sketch15.addGeometry(Part.Circle(App.Vector(13.5, -19.9, 0), App.Vector(0, 0, 1), 0.8), False)
sketch15.addGeometry(Part.Circle(App.Vector(13.5, -9.9, 0), App.Vector(0, 0, 1), 1.2), False)
sketch15.addGeometry(Part.Circle(App.Vector(13.5, -9.9, 0), App.Vector(0, 0, 1), 0.8), False)
sketch15.addGeometry(Part.Circle(App.Vector(-13.5, -9.9, 0), App.Vector(0, 0, 1), 1.2), False)
sketch15.addGeometry(Part.Circle(App.Vector(-13.5, -9.9, 0), App.Vector(0, 0, 1), 0.8), False)
sketch15.addGeometry(Part.Circle(App.Vector(-13.5, -19.9, 0), App.Vector(0, 0, 1), 1.2), False)
sketch15.addGeometry(Part.Circle(App.Vector(-13.5, -19.9, 0), App.Vector(0, 0, 1), 0.8), False)
sketch15.addGeometry(Part.Circle(App.Vector(0, 15.3, 0), App.Vector(0, 0, 1), 1.2), False)
sketch15.addGeometry(Part.Circle(App.Vector(0, 15.3, 0), App.Vector(0, 0, 1), 0.8), False)
sketch15.addConstraint(Sketcher.Constraint("Coincident", 1, 3, 0, 3))
sketch15.addConstraint(Sketcher.Constraint("Coincident", 3, 3, 2, 3))
sketch15.addConstraint(Sketcher.Constraint("Coincident", 5, 3, 4, 3))
sketch15.addConstraint(Sketcher.Constraint("Coincident", 7, 3, 6, 3))
sketch15.addConstraint(Sketcher.Constraint("Coincident", 9, 3, 8, 3))
sketch15.addConstraint(Sketcher.Constraint("Equal", 0, 2))
sketch15.addConstraint(Sketcher.Constraint("Equal", 1, 3))
sketch15.addConstraint(Sketcher.Constraint("Equal", 2, 4))
sketch15.addConstraint(Sketcher.Constraint("Equal", 3, 5))
sketch15.addConstraint(Sketcher.Constraint("Equal", 4, 6))
sketch15.addConstraint(Sketcher.Constraint("Equal", 5, 7))
sketch15.addConstraint(Sketcher.Constraint("Equal", 6, 8))
sketch15.addConstraint(Sketcher.Constraint("Equal", 7, 9))
sketch15.addConstraint(Sketcher.Constraint("Symmetric", 2, 3, 4, 3, -2))
sketch15.addConstraint(Sketcher.Constraint("Symmetric", 0, 3, 6, 3, -2))
sketch15.addConstraint(Sketcher.Constraint("PointOnObject", 8, 3, -2))
sketch15.addConstraint(Sketcher.Constraint("Vertical", 1, 3, 2, 3))
sketch15.addConstraint(Sketcher.Constraint("Diameter", 0, 2.5))
sketch15.addConstraint(Sketcher.Constraint("Diameter", 1, 1.5))
sketch15.addConstraint(Sketcher.Constraint("DistanceY", 0, 3, 2, 3, 10.0))
sketch15.addConstraint(Sketcher.Constraint("DistanceY", 0, 3, -1, 1, 19.89778))
sketch15.addConstraint(Sketcher.Constraint("DistanceX", 4, 3, 2, 3, 26.95601))
sketch15.addConstraint(Sketcher.Constraint("DistanceY", -1, 1, 8, 3, 15.271275))
pocket3 = body4.newObject("PartDesign::Pocket", "Pocket002")
pocket3.Profile = sketch15
pocket3.Length = 1

doc.recompute()
